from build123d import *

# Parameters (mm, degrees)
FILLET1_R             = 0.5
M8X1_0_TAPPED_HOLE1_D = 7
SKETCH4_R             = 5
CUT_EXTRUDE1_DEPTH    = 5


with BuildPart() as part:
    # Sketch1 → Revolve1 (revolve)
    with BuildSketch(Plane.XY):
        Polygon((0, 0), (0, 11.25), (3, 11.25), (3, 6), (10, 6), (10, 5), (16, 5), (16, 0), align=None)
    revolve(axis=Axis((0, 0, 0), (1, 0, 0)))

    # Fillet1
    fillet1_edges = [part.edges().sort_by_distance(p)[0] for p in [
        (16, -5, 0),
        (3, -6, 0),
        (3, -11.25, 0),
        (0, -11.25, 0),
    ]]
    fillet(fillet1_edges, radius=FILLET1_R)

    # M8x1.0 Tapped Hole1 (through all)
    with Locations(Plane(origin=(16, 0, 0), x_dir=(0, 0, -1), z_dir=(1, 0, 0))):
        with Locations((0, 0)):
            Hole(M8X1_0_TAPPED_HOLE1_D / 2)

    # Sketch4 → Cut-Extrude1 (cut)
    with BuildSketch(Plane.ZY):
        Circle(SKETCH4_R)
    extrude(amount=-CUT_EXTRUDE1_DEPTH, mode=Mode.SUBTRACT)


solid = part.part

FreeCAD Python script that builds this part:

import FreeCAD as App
import Part
import Sketcher


def edges_at(feature, points):
    """Names of the edges that pass closest to the given points."""
    edges = feature.Shape.Edges
    near = lambda p: min(range(len(edges)), key=lambda i: edges[i].distToShape(Part.Vertex(*p))[0])
    return sorted({f"Edge{near(p) + 1}" for p in points})


def add_polygon(sketch, points):
    """Adds a closed chain of lines whose ends are joined by coincident constraints."""
    first, n = sketch.GeometryCount, len(points)
    for a, b in zip(points, points[1:] + points[:1]):
        sketch.addGeometry(Part.LineSegment(App.Vector(*a, 0), App.Vector(*b, 0)), False)
    for i in range(n):
        sketch.addConstraint(Sketcher.Constraint("Coincident", first + i, 2, first + (i + 1) % n, 1))

doc = App.newDocument("Part")
params = doc.addObject("Spreadsheet::Sheet", "Params")
for row, (alias, value) in enumerate([
    ("sketch1_width", "16 mm"),
    ("sketch1_width2", "6 mm"),
    ("sketch1_width3", "7 mm"),
    ("sketch1_height", "5 mm"),
    ("sketch1_height2", "1 mm"),
    ("revolution_angle", "360 deg"),
    ("fillet_radius", "0.5 mm"),
    ("sketch2_diameter", "7 mm"),
    ("hole_diameter", "7 mm"),
    ("sketch3_diameter", "10 mm"),
    ("pocket1_length", "5 mm"),
], start=1):
    params.set(f"A{row}", alias)
    params.set(f"B{row}", "=" + value)
    params.setAlias(f"B{row}", alias)

body = doc.addObject("PartDesign::Body", "Body")

sketch1 = body.newObject("Sketcher::SketchObject", "Sketch")
sketch1.AttachmentSupport = (doc.getObject("XY_Plane"), [""])
sketch1.MapMode = "FlatFace"
add_polygon(sketch1, [(0, 11.2), (0, 0), (16, 0), (16, 5), (10, 5), (10, 6), (3, 6), (3, 11.2)])
sketch1.addConstraint([
    Sketcher.Constraint("Vertical", 0),
    Sketcher.Constraint("Horizontal", 1),
    Sketcher.Constraint("Vertical", 2),
    Sketcher.Constraint("Horizontal", 3),
    Sketcher.Constraint("Vertical", 4),
    Sketcher.Constraint("Horizontal", 5),
    Sketcher.Constraint("Vertical", 6),
    Sketcher.Constraint("Horizontal", 7),
    Sketcher.Constraint("Coincident", 0, 2, -1, 1),
    Sketcher.Constraint("DistanceX", 1, 1, 1, 2, 16.0),
    Sketcher.Constraint("DistanceX", 3, 2, 3, 1, 6.0),
    Sketcher.Constraint("DistanceX", 5, 2, 5, 1, 7.0),
    Sketcher.Constraint("DistanceY", 2, 1, 2, 2, 5.0),
    Sketcher.Constraint("DistanceY", 4, 1, 4, 2, 1.0),
    Sketcher.Constraint("DistanceY", 0, 2, 0, 1, 11.25),
])
sketch1.setExpression("Constraints[17]", "Params.sketch1_width")
sketch1.setExpression("Constraints[18]", "Params.sketch1_width2")
sketch1.setExpression("Constraints[19]", "Params.sketch1_width3")
sketch1.setExpression("Constraints[20]", "Params.sketch1_height")
sketch1.setExpression("Constraints[21]", "Params.sketch1_height2")
revolution = body.newObject("PartDesign::Revolution", "Revolution")
revolution.Profile = sketch1
revolution.ReferenceAxis = (sketch1, ["H_Axis"])
revolution.setExpression("Angle", "Params.revolution_angle")
doc.recompute()

fillet = body.newObject("PartDesign::Fillet", "Fillet")
fillet.Base = (revolution, edges_at(revolution, [
    (16, -5, 0),
    (3, -6, 0),
    (3, -11.25, 0),
    (0, -11.25, 0),
]))
fillet.setExpression("Radius", "Params.fillet_radius")

sketch2 = body.newObject("Sketcher::SketchObject", "Sketch001")
sketch2.AttachmentSupport = (doc.getObject("YZ_Plane"), [""])
sketch2.MapMode = "FlatFace"
sketch2.AttachmentOffset = App.Placement(App.Vector(0, 0, 16), App.Rotation())
sketch2.addGeometry(Part.Circle(App.Vector(0, 0, 0), App.Vector(0, 0, 1), 3.5), False)
sketch2.addConstraint([
    Sketcher.Constraint("Coincident", 0, 3, -1, 1),
    Sketcher.Constraint("Diameter", 0, 7.0),
])
sketch2.setExpression("Constraints[1]", "Params.sketch2_diameter")
doc.recompute()
hole = body.newObject("PartDesign::Hole", "Hole")
hole.Profile = sketch2
hole.ThreadType = "None"
hole.setExpression("Diameter", "Params.hole_diameter")
hole.DepthType = "ThroughAll"

sketch3 = body.newObject("Sketcher::SketchObject", "Sketch002")
sketch3.AttachmentSupport = (doc.getObject("YZ_Plane"), [""])
sketch3.MapMode = "FlatFace"
sketch3.addGeometry(Part.Circle(App.Vector(0, 0, 0), App.Vector(0, 0, 1), 5), False)
sketch3.addConstraint([
    Sketcher.Constraint("Coincident", 0, 3, -1, 1),
    Sketcher.Constraint("Diameter", 0, 10.0),
])
sketch3.setExpression("Constraints[1]", "Params.sketch3_diameter")
pocket1 = body.newObject("PartDesign::Pocket", "Pocket")
pocket1.Profile = sketch3
pocket1.setExpression("Length", "Params.pocket1_length")
pocket1.Reversed = True

doc.recompute()
